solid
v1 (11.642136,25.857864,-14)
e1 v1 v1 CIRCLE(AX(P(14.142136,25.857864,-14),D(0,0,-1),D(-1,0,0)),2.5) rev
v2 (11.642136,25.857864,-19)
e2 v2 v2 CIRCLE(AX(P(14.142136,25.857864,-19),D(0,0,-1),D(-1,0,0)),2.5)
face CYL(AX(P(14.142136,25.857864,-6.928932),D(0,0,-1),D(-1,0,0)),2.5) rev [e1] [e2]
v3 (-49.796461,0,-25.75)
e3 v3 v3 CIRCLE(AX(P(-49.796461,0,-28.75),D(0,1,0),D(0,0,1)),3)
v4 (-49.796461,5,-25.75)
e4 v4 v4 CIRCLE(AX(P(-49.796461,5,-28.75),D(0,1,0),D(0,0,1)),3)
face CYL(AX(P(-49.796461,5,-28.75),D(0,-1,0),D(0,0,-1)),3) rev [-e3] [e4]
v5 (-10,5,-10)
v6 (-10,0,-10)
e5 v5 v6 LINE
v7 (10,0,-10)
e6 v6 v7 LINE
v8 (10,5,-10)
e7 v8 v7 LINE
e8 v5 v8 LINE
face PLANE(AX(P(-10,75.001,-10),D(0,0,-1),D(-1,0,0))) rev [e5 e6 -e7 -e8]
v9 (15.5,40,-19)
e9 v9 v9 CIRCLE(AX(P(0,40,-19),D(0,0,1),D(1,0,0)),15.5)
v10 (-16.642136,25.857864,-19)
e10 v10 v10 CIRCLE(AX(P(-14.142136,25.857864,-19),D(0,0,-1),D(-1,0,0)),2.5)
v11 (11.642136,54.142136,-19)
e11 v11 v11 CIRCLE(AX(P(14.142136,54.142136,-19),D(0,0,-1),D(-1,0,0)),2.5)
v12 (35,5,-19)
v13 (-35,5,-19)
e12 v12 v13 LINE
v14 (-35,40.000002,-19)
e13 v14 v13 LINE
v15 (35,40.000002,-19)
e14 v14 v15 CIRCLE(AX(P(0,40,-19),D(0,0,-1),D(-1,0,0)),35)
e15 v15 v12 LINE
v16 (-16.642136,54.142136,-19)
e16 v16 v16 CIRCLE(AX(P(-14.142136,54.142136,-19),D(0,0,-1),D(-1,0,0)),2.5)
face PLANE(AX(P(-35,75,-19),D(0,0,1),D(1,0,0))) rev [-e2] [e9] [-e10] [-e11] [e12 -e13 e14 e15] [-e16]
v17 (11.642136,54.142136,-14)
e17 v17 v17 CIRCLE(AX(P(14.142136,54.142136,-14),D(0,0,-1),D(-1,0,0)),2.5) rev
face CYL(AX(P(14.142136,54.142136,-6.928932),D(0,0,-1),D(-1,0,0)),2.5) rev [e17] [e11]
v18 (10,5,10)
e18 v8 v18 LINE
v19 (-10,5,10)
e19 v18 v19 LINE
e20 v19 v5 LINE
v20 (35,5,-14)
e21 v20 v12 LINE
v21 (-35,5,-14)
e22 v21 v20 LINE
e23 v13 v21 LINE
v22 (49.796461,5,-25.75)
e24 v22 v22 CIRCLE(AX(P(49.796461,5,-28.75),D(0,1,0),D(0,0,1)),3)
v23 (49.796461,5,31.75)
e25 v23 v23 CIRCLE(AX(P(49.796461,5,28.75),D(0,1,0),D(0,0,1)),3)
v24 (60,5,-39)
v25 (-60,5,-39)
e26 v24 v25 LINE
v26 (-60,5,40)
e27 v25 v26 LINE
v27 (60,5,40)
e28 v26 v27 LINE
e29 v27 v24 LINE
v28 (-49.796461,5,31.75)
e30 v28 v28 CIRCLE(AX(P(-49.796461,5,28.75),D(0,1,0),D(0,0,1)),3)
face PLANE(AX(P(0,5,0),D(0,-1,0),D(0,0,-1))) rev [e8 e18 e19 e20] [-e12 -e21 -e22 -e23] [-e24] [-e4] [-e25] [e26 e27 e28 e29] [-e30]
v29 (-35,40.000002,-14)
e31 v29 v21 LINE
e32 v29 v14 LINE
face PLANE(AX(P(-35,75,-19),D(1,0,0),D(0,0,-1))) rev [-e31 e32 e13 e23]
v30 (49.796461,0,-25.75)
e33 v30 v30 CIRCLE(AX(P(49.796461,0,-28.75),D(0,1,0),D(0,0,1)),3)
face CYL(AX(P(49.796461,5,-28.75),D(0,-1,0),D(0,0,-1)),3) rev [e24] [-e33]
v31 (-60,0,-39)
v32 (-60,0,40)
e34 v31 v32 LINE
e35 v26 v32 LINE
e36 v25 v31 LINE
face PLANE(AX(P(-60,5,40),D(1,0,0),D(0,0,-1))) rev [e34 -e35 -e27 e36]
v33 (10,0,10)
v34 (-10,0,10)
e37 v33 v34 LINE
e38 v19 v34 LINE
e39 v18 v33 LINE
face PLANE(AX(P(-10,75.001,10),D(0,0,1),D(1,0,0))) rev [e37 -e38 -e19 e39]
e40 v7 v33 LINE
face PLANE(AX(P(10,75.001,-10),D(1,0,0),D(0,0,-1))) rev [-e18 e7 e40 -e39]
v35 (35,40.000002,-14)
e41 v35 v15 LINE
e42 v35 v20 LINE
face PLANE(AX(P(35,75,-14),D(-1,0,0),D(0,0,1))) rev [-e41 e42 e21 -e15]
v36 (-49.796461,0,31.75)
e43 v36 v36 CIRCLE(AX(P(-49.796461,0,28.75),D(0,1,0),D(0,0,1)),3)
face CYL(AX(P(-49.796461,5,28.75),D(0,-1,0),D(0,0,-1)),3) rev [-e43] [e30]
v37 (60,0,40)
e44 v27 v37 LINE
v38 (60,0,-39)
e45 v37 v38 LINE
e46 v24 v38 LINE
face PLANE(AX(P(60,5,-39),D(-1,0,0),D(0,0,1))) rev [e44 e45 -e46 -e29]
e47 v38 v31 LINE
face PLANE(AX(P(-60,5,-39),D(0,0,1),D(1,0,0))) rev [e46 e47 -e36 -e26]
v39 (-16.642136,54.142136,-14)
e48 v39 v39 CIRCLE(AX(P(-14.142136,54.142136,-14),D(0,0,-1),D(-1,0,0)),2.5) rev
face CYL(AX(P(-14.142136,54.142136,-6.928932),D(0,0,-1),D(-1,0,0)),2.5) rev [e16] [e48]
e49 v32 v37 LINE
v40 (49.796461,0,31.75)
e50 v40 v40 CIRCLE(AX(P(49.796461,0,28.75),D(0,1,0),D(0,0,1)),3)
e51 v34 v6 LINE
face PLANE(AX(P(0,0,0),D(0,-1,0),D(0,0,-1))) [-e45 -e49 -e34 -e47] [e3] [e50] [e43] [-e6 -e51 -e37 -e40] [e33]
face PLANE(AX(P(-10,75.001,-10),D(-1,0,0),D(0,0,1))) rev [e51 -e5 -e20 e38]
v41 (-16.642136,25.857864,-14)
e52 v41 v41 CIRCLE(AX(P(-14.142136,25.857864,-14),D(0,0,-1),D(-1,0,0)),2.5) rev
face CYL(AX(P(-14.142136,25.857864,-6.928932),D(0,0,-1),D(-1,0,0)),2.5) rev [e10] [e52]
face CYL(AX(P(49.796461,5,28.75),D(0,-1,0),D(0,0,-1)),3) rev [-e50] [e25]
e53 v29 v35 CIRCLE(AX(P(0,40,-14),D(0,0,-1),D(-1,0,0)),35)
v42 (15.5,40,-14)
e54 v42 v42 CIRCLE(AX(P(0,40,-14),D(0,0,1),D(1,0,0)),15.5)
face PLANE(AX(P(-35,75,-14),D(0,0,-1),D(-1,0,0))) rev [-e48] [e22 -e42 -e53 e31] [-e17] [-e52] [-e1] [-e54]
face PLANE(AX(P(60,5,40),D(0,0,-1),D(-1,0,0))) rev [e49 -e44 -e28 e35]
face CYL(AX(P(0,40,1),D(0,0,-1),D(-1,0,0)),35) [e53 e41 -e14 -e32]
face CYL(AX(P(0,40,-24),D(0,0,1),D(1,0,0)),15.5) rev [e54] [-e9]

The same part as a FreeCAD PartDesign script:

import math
import FreeCAD as App
import Part
import Sketcher

V = App.Vector

doc = App.newDocument("Part")
body = doc.addObject("PartDesign::Body", "Body")

# Sketch on XZ plane
sketch1 = body.newObject("Sketcher::SketchObject", "Sketch")
sketch1.AttachmentSupport = (doc.getObject("XZ_Plane"), [""])
sketch1.MapMode = "FlatFace"
sketch1.addGeometry(Part.LineSegment(V(-20, 40, 0), V(-20, 70, 0)), False)
sketch1.addGeometry(Part.LineSegment(V(-20, 70, 0), V(20, 70, 0)), False)
sketch1.addGeometry(Part.LineSegment(V(20, 70, 0), V(20, 40, 0)), False)
sketch1.addGeometry(Part.LineSegment(V(20, 40, 0), V(60, 40, 0)), False)
sketch1.addGeometry(Part.LineSegment(V(60, 40, 0), V(60, -39, 0)), False)
sketch1.addGeometry(Part.LineSegment(V(60, -39, 0), V(-60, -39, 0)), False)
sketch1.addGeometry(Part.LineSegment(V(-60, -39, 0), V(-60, 40, 0)), False)
sketch1.addGeometry(Part.LineSegment(V(-60, 40, 0), V(-20, 40, 0)), False)
sketch1.addGeometry(Part.Circle(V(-49.8, 28.8, 0), V(0, 0, 1), 3), False)
sketch1.addGeometry(Part.Circle(V(0, 57.5, 0), V(0, 0, 1), 3), False)
sketch1.addGeometry(Part.Circle(V(49.8, 28.8, 0), V(0, 0, 1), 3), False)
sketch1.addGeometry(Part.Circle(V(-49.8, -28.8, 0), V(0, 0, 1), 3), False)
sketch1.addGeometry(Part.Circle(V(49.8, -28.8, 0), V(0, 0, 1), 3), False)
sketch1.addConstraint(Sketcher.Constraint("Coincident", 0, 2, 1, 1))
sketch1.addConstraint(Sketcher.Constraint("Coincident", 1, 2, 2, 1))
sketch1.addConstraint(Sketcher.Constraint("Coincident", 2, 2, 3, 1))
sketch1.addConstraint(Sketcher.Constraint("Coincident", 3, 2, 4, 1))
sketch1.addConstraint(Sketcher.Constraint("Coincident", 4, 2, 5, 1))
sketch1.addConstraint(Sketcher.Constraint("Coincident", 5, 2, 6, 1))
sketch1.addConstraint(Sketcher.Constraint("Coincident", 6, 2, 7, 1))
sketch1.addConstraint(Sketcher.Constraint("Coincident", 7, 2, 0, 1))
sketch1.addConstraint(Sketcher.Constraint("Vertical", 0))
sketch1.addConstraint(Sketcher.Constraint("Horizontal", 1))
sketch1.addConstraint(Sketcher.Constraint("Vertical", 2))
sketch1.addConstraint(Sketcher.Constraint("Horizontal", 3))
sketch1.addConstraint(Sketcher.Constraint("Vertical", 4))
sketch1.addConstraint(Sketcher.Constraint("Horizontal", 5))
sketch1.addConstraint(Sketcher.Constraint("Vertical", 6))
sketch1.addConstraint(Sketcher.Constraint("Horizontal", 7))
sketch1.addConstraint(Sketcher.Constraint("Equal", 8, 9))
sketch1.addConstraint(Sketcher.Constraint("Equal", 9, 10))
sketch1.addConstraint(Sketcher.Constraint("Equal", 10, 11))
sketch1.addConstraint(Sketcher.Constraint("Equal", 11, 12))
sketch1.addConstraint(Sketcher.Constraint("Symmetric", 10, 3, 11, 3, -1, 1))
sketch1.addConstraint(Sketcher.Constraint("Symmetric", 8, 3, 12, 3, -1, 1))
sketch1.addConstraint(Sketcher.Constraint("Symmetric", 8, 3, 10, 3, -2))
sketch1.addConstraint(Sketcher.Constraint("Symmetric", 3, 2, 6, 2, -2))
sketch1.addConstraint(Sketcher.Constraint("PointOnObject", 9, 3, -2))
sketch1.addConstraint(Sketcher.Constraint("Equal", 1, 3))
sketch1.addConstraint(Sketcher.Constraint("Equal", 3, 7))
sketch1.addConstraint(Sketcher.Constraint("Diameter", 8, 6.0))
sketch1.addConstraint(Sketcher.Constraint("DistanceX", 1, 1, 1, 2, 40.0))
sketch1.addConstraint(Sketcher.Constraint("DistanceY", 0, 1, 0, 2, 30.0))
sketch1.addConstraint(Sketcher.Constraint("DistanceY", 4, 2, 4, 1, 79.0))
sketch1.addConstraint(Sketcher.Constraint("DistanceY", -1, 1, 0, 2, 70.0))
sketch1.addConstraint(Sketcher.Constraint("DistanceY", -1, 1, 9, 3, 57.5))
sketch1.addConstraint(Sketcher.Constraint("DistanceY", 11, 3, 8, 3, 57.5))
sketch1.addConstraint(Sketcher.Constraint("DistanceX", 8, 3, -1, 1, 49.796461))
pad1 = body.newObject("PartDesign::Pad", "Pad")
pad1.Profile = sketch1
pad1.Length = 5
pad1.Reversed = True

# Sketch on XZ plane
sketch2 = body.newObject("Sketcher::SketchObject", "Sketch001")
sketch2.AttachmentSupport = (doc.getObject("XZ_Plane"), [""])
sketch2.MapMode = "FlatFace"
sketch2.AttachmentOffset = App.Placement(V(0, 0, -5), App.Rotation())
sketch2.addGeometry(Part.LineSegment(V(-35, -19, 0), V(-35, -14, 0)), False)
sketch2.addGeometry(Part.LineSegment(V(-35, -14, 0), V(35, -14, 0)), False)
sketch2.addGeometry(Part.LineSegment(V(35, -14, 0), V(35, -19, 0)), False)
sketch2.addGeometry(Part.LineSegment(V(35, -19, 0), V(-35, -19, 0)), False)
sketch2.addConstraint(Sketcher.Constraint("Coincident", 0, 2, 1, 1))
sketch2.addConstraint(Sketcher.Constraint("Coincident", 1, 2, 2, 1))
sketch2.addConstraint(Sketcher.Constraint("Coincident", 2, 2, 3, 1))
sketch2.addConstraint(Sketcher.Constraint("Coincident", 3, 2, 0, 1))
sketch2.addConstraint(Sketcher.Constraint("Vertical", 0))
sketch2.addConstraint(Sketcher.Constraint("Horizontal", 1))
sketch2.addConstraint(Sketcher.Constraint("Vertical", 2))
sketch2.addConstraint(Sketcher.Constraint("Horizontal", 3))
sketch2.addConstraint(Sketcher.Constraint("DistanceX", 1, 1, 1, 2, 70.0))
sketch2.addConstraint(Sketcher.Constraint("DistanceY", 0, 1, 0, 2, 5.0))
sketch2.addConstraint(Sketcher.Constraint("DistanceX", 0, 2, -1, 1, 35.0))
sketch2.addConstraint(Sketcher.Constraint("DistanceY", 0, 2, -1, 1, 14.0))
pad2 = body.newObject("PartDesign::Pad", "Pad001")
pad2.Profile = sketch2
pad2.Length = 70
pad2.Reversed = True

# Sketch on XY plane
sketch3 = body.newObject("Sketcher::SketchObject", "Sketch002")
sketch3.AttachmentSupport = (doc.getObject("XY_Plane"), [""])
sketch3.MapMode = "FlatFace"
sketch3.AttachmentOffset = App.Placement(V(0, 0, -19), App.Rotation())
sketch3.addGeometry(Part.ArcOfCircle(Part.Circle(V(0, 40, 0), V(0, 0, 1), 35), math.radians(0), math.radians(90)), False)
sketch3.addGeometry(Part.LineSegment(V(0, 75, 0), V(35, 75, 0)), False)
sketch3.addGeometry(Part.LineSegment(V(35, 75, 0), V(35, 40, 0)), False)
sketch3.addGeometry(Part.LineSegment(V(-35, 40, 0), V(-35, 75, 0)), False)
sketch3.addGeometry(Part.LineSegment(V(-35, 75, 0), V(0, 75, 0)), False)
sketch3.addGeometry(Part.ArcOfCircle(Part.Circle(V(0, 40, 0), V(0, 0, 1), 35), math.radians(90), math.radians(180)), False)
sketch3.addConstraint(Sketcher.Constraint("Tangent", 0, 2, 1, 1))
sketch3.addConstraint(Sketcher.Constraint("Coincident", 1, 2, 2, 1))
sketch3.addConstraint(Sketcher.Constraint("Tangent", 2, 2, 0, 1))
sketch3.addConstraint(Sketcher.Constraint("Coincident", 3, 2, 4, 1))
sketch3.addConstraint(Sketcher.Constraint("Tangent", 4, 2, 5, 1))
sketch3.addConstraint(Sketcher.Constraint("Tangent", 5, 2, 3, 1))
sketch3.addConstraint(Sketcher.Constraint("Horizontal", 1))
sketch3.addConstraint(Sketcher.Constraint("Vertical", 2))
sketch3.addConstraint(Sketcher.Constraint("Vertical", 3))
sketch3.addConstraint(Sketcher.Constraint("Horizontal", 4))
sketch3.addConstraint(Sketcher.Constraint("Coincident", 5, 3, 0, 3))
sketch3.addConstraint(Sketcher.Constraint("Equal", 0, 5))
sketch3.addConstraint(Sketcher.Constraint("PointOnObject", 0, 3, -2))
sketch3.addConstraint(Sketcher.Constraint("Radius", 0, 35.0))
sketch3.addConstraint(Sketcher.Constraint("DistanceY", -1, 1, 0, 3, 40.0))
pocket1 = body.newObject("PartDesign::Pocket", "Pocket")
pocket1.Profile = sketch3
pocket1.Length = 20
pocket1.Reversed = True

# Sketch on XY plane
sketch4 = body.newObject("Sketcher::SketchObject", "Sketch003")
sketch4.AttachmentSupport = (doc.getObject("XY_Plane"), [""])
sketch4.MapMode = "FlatFace"
sketch4.AttachmentOffset = App.Placement(V(0, 0, -14), App.Rotation())
sketch4.addGeometry(Part.Circle(V(0, 40, 0), V(0, 0, 1), 16), False)
sketch4.addConstraint(Sketcher.Constraint("PointOnObject", 0, 3, -2))
sketch4.addConstraint(Sketcher.Constraint("Diameter", 0, 31.0))
sketch4.addConstraint(Sketcher.Constraint("DistanceY", -1, 1, 0, 3, 40.0))
pocket2 = body.newObject("PartDesign::Pocket", "Pocket001")
pocket2.Profile = sketch4
pocket2.Length = 10

# Sketch on XZ plane
sketch5 = body.newObject("Sketcher::SketchObject", "Sketch004")
sketch5.AttachmentSupport = (doc.getObject("XZ_Plane"), [""])
sketch5.MapMode = "FlatFace"
sketch5.addGeometry(Part.LineSegment(V(-10, 10, 0), V(-10, -10, 0)), False)
sketch5.addGeometry(Part.LineSegment(V(-10, -10, 0), V(10, -10, 0)), False)
sketch5.addGeometry(Part.LineSegment(V(10, -10, 0), V(10, 10, 0)), False)
sketch5.addGeometry(Part.LineSegment(V(10, 10, 0), V(-10, 10, 0)), False)
sketch5.addConstraint(Sketcher.Constraint("Coincident", 0, 2, 1, 1))
sketch5.addConstraint(Sketcher.Constraint("Coincident", 1, 2, 2, 1))
sketch5.addConstraint(Sketcher.Constraint("Coincident", 2, 2, 3, 1))
sketch5.addConstraint(Sketcher.Constraint("Coincident", 3, 2, 0, 1))
sketch5.addConstraint(Sketcher.Constraint("Vertical", 0))
sketch5.addConstraint(Sketcher.Constraint("Horizontal", 1))
sketch5.addConstraint(Sketcher.Constraint("Vertical", 2))
sketch5.addConstraint(Sketcher.Constraint("Horizontal", 3))
sketch5.addConstraint(Sketcher.Constraint("Symmetric", 0, 2, 2, 2, -1, 1))
sketch5.addConstraint(Sketcher.Constraint("Equal", 3, 0))
sketch5.addConstraint(Sketcher.Constraint("DistanceX", 1, 1, 1, 2, 20.0))
pocket3 = body.newObject("PartDesign::Pocket", "Pocket002")
pocket3.Profile = sketch5
pocket3.Type = "UpToFirst"

# Sketch on XY plane
sketch6 = body.newObject("Sketcher::SketchObject", "Sketch005")
sketch6.AttachmentSupport = (doc.getObject("XY_Plane"), [""])
sketch6.MapMode = "FlatFace"
sketch6.AttachmentOffset = App.Placement(V(0, 0, 70), App.Rotation())
sketch6.addGeometry(Part.LineSegment(V(-20, 5, 0), V(-20, 0, 0)), False)
sketch6.addGeometry(Part.LineSegment(V(-20, 0, 0), V(20, 0, 0)), False)
sketch6.addGeometry(Part.LineSegment(V(20, 0, 0), V(20, 5, 0)), False)
sketch6.addGeometry(Part.LineSegment(V(20, 5, 0), V(-20, 5, 0)), False)
sketch6.addConstraint(Sketcher.Constraint("Coincident", 0, 2, 1, 1))
sketch6.addConstraint(Sketcher.Constraint("Coincident", 1, 2, 2, 1))
sketch6.addConstraint(Sketcher.Constraint("Coincident", 2, 2, 3, 1))
sketch6.addConstraint(Sketcher.Constraint("Coincident", 3, 2, 0, 1))
sketch6.addConstraint(Sketcher.Constraint("Vertical", 0))
sketch6.addConstraint(Sketcher.Constraint("Horizontal", 1))
sketch6.addConstraint(Sketcher.Constraint("Vertical", 2))
sketch6.addConstraint(Sketcher.Constraint("Horizontal", 3))
sketch6.addConstraint(Sketcher.Constraint("Symmetric", 0, 2, 1, 2, -1, 1))
sketch6.addConstraint(Sketcher.Constraint("DistanceX", 1, 1, 1, 2, 40.0))
sketch6.addConstraint(Sketcher.Constraint("DistanceY", 0, 2, 0, 1, 5.0))
pocket4 = body.newObject("PartDesign::Pocket", "Pocket003")
pocket4.Profile = sketch6
pocket4.Length = 30

# Sketch on XY plane
sketch7 = body.newObject("Sketcher::SketchObject", "Sketch006")
sketch7.AttachmentSupport = (doc.getObject("XY_Plane"), [""])
sketch7.MapMode = "FlatFace"
sketch7.AttachmentOffset = App.Placement(V(0, 0, -19), App.Rotation())
sketch7.addGeometry(Part.Circle(V(-14.1, 54.1, 0), V(0, 0, 1), 2.5), False)
sketch7.addGeometry(Part.Circle(V(-14.1, 25.9, 0), V(0, 0, 1), 2.5), False)
sketch7.addGeometry(Part.Circle(V(14.1, 25.9, 0), V(0, 0, 1), 2.5), False)
sketch7.addGeometry(Part.Circle(V(14.1, 54.1, 0), V(0, 0, 1), 2.5), False)
sketch7.addConstraint(Sketcher.Constraint("Equal", 0, 1))
sketch7.addConstraint(Sketcher.Constraint("Equal", 1, 2))
sketch7.addConstraint(Sketcher.Constraint("Equal", 2, 3))
sketch7.addConstraint(Sketcher.Constraint("Symmetric", 1, 3, 2, 3, -2))
sketch7.addConstraint(Sketcher.Constraint("Symmetric", 0, 3, 3, 3, -2))
sketch7.addConstraint(Sketcher.Constraint("Vertical", 0, 3, 1, 3))
sketch7.addConstraint(Sketcher.Constraint("Diameter", 0, 5.0))
sketch7.addConstraint(Sketcher.Constraint("DistanceY", 1, 3, 0, 3, 28.284271))
sketch7.addConstraint(Sketcher.Constraint("DistanceX", 1, 3, 2, 3, 28.284271))
sketch7.addConstraint(Sketcher.Constraint("DistanceY", -1, 1, 0, 3, 54.142136))
pocket5 = body.newObject("PartDesign::Pocket", "Pocket004")
pocket5.Profile = sketch7
pocket5.Length = 5
pocket5.Reversed = True

doc.recompute()
